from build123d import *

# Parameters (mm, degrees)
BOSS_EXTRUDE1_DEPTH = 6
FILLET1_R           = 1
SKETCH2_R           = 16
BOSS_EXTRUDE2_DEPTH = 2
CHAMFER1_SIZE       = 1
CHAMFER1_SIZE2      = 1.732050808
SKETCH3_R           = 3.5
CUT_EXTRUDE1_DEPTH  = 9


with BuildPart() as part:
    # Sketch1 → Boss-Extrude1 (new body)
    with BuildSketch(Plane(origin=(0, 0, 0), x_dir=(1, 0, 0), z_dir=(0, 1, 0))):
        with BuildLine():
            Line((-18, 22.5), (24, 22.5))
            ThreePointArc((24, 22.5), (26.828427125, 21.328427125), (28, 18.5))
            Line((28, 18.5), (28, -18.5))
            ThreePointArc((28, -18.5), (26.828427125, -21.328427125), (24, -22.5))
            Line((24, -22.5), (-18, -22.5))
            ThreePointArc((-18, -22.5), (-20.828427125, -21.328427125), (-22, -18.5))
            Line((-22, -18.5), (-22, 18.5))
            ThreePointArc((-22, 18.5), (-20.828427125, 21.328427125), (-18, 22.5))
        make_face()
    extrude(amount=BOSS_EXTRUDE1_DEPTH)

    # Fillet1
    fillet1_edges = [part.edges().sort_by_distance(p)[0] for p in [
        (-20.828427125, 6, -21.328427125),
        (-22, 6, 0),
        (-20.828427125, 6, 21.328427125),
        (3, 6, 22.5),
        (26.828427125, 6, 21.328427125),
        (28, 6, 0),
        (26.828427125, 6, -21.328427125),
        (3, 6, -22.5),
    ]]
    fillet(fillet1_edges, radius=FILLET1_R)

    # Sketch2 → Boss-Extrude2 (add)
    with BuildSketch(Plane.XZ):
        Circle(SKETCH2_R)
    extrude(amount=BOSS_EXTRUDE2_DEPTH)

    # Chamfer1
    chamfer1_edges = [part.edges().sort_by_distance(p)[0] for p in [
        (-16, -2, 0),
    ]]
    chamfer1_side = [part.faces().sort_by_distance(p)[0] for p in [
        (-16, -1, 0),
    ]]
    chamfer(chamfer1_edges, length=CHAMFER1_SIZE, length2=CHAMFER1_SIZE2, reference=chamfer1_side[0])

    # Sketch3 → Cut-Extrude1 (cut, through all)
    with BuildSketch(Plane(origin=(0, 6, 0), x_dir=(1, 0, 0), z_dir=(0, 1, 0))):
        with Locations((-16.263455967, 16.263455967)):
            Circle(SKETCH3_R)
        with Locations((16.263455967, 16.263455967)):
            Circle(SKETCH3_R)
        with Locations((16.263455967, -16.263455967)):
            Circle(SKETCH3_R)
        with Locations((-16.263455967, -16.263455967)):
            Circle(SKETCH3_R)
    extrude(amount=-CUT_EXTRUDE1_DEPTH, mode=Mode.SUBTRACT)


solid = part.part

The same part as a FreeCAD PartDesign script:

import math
import FreeCAD as App
import Part
import Sketcher

V = App.Vector


def edges_at(feature, points):
    """Names of the edges that pass closest to the given points."""
    edges = feature.Shape.Edges
    near = lambda p: min(range(len(edges)), key=lambda i: edges[i].distToShape(Part.Vertex(*p))[0])
    return sorted({f"Edge{near(p) + 1}" for p in points})

doc = App.newDocument("Part")
body = doc.addObject("PartDesign::Body", "Body")

sketch1 = doc.addObject("Sketcher::SketchObject", "Sketch")
body.addObject(sketch1)
sketch1.AttachmentSupport = (doc.XZ_Plane, [""])
sketch1.MapMode = "FlatFace"
sketch1.addGeometry(Part.LineSegment(V(24, -22.5, 0), V(-18, -22.5, 0)), False)
sketch1.addGeometry(Part.ArcOfCircle(Part.Circle(V(-18, -18.5, 0), V(0, 0, 1), 4), math.radians(180), math.radians(270)), False)
sketch1.addGeometry(Part.LineSegment(V(-22, -18.5, 0), V(-22, 18.5, 0)), False)
sketch1.addGeometry(Part.ArcOfCircle(Part.Circle(V(-18, 18.5, 0), V(0, 0, 1), 4), math.radians(90), math.radians(180)), False)
sketch1.addGeometry(Part.LineSegment(V(-18, 22.5, 0), V(24, 22.5, 0)), False)
sketch1.addGeometry(Part.ArcOfCircle(Part.Circle(V(24, 18.5, 0), V(0, 0, 1), 4), math.radians(0), math.radians(90)), False)
sketch1.addGeometry(Part.LineSegment(V(28, 18.5, 0), V(28, -18.5, 0)), False)
sketch1.addGeometry(Part.ArcOfCircle(Part.Circle(V(24, -18.5, 0), V(0, 0, 1), 4), math.radians(-90), math.radians(0)), False)
sketch1.addConstraint(Sketcher.Constraint("Tangent", 0, 2, 1, 2))
sketch1.addConstraint(Sketcher.Constraint("Tangent", 1, 1, 2, 1))
sketch1.addConstraint(Sketcher.Constraint("Tangent", 2, 2, 3, 2))
sketch1.addConstraint(Sketcher.Constraint("Tangent", 3, 1, 4, 1))
sketch1.addConstraint(Sketcher.Constraint("Tangent", 4, 2, 5, 2))
sketch1.addConstraint(Sketcher.Constraint("Tangent", 5, 1, 6, 1))
sketch1.addConstraint(Sketcher.Constraint("Tangent", 6, 2, 7, 2))
sketch1.addConstraint(Sketcher.Constraint("Tangent", 7, 1, 0, 1))
sketch1.addConstraint(Sketcher.Constraint("Horizontal", 0))
sketch1.addConstraint(Sketcher.Constraint("Vertical", 2))
sketch1.addConstraint(Sketcher.Constraint("Horizontal", 4))
sketch1.addConstraint(Sketcher.Constraint("Vertical", 6))
sketch1.addConstraint(Sketcher.Constraint("Equal", 1, 3))
sketch1.addConstraint(Sketcher.Constraint("Equal", 3, 5))
sketch1.addConstraint(Sketcher.Constraint("Equal", 5, 7))
sketch1.addConstraint(Sketcher.Constraint("Radius", 1, 4.0))
sketch1.addConstraint(Sketcher.Constraint("DistanceX", 0, 2, 0, 1, 42.0))
sketch1.addConstraint(Sketcher.Constraint("DistanceY", 2, 1, 2, 2, 37.0))
sketch1.addConstraint(Sketcher.Constraint("DistanceX", 1, 3, -1, 1, 18.0))
sketch1.addConstraint(Sketcher.Constraint("DistanceY", 1, 3, -1, 1, 18.5))
pad1 = doc.addObject("PartDesign::Pad", "Pad")
body.addObject(pad1)
pad1.Profile = sketch1
pad1.Length = 6
pad1.Reversed = True
doc.recompute()

fillet = doc.addObject("PartDesign::Fillet", "Fillet")
body.addObject(fillet)
fillet.Base = (pad1, edges_at(pad1, [
    (-20.828, 6, -21.328),
    (-22, 6, 0),
    (-20.828, 6, 21.328),
    (3, 6, 22.5),
    (26.828, 6, 21.328),
    (28, 6, 0),
    (26.828, 6, -21.328),
    (3, 6, -22.5),
]))
fillet.Radius = 1

sketch2 = doc.addObject("Sketcher::SketchObject", "Sketch001")
body.addObject(sketch2)
sketch2.AttachmentSupport = (doc.XZ_Plane, [""])
sketch2.MapMode = "FlatFace"
sketch2.addGeometry(Part.Circle(V(0, 0, 0), V(0, 0, 1), 16), False)
sketch2.addConstraint(Sketcher.Constraint("Coincident", 0, 3, -1, 1))
sketch2.addConstraint(Sketcher.Constraint("Diameter", 0, 32.0))
pad2 = doc.addObject("PartDesign::Pad", "Pad001")
body.addObject(pad2)
pad2.Profile = sketch2
pad2.Length = 2
doc.recompute()

chamfer = doc.addObject("PartDesign::Chamfer", "Chamfer")
body.addObject(chamfer)
chamfer.Base = (pad2, edges_at(pad2, [(-16, -2, 0)]))
chamfer.ChamferType = "Two distances"
chamfer.Size = 1
chamfer.Size2 = 1.732051

sketch3 = doc.addObject("Sketcher::SketchObject", "Sketch002")
body.addObject(sketch3)
sketch3.AttachmentSupport = (doc.XZ_Plane, [""])
sketch3.MapMode = "FlatFace"
sketch3.AttachmentOffset = App.Placement(V(0, 0, -6), App.Rotation())
sketch3.addGeometry(Part.Circle(V(-16.263456, -16.263456, 0), V(0, 0, 1), 3.5), False)
sketch3.addGeometry(Part.Circle(V(16.263456, -16.263456, 0), V(0, 0, 1), 3.5), False)
sketch3.addGeometry(Part.Circle(V(16.263456, 16.263456, 0), V(0, 0, 1), 3.5), False)
sketch3.addGeometry(Part.Circle(V(-16.263456, 16.263456, 0), V(0, 0, 1), 3.5), False)
sketch3.addConstraint(Sketcher.Constraint("Equal", 0, 1))
sketch3.addConstraint(Sketcher.Constraint("Equal", 1, 2))
sketch3.addConstraint(Sketcher.Constraint("Equal", 2, 3))
sketch3.addConstraint(Sketcher.Constraint("Symmetric", 0, 3, 2, 3, -1, 1))
sketch3.addConstraint(Sketcher.Constraint("Symmetric", 1, 3, 3, 3, -1, 1))
sketch3.addConstraint(Sketcher.Constraint("Symmetric", 0, 3, 1, 3, -2))
sketch3.addConstraint(Sketcher.Constraint("Diameter", 0, 7.0))
sketch3.addConstraint(Sketcher.Constraint("DistanceX", 0, 3, 1, 3, 32.526912))
sketch3.addConstraint(Sketcher.Constraint("DistanceY", 1, 3, 2, 3, 32.526912))
pocket1 = doc.addObject("PartDesign::Pocket", "Pocket")
body.addObject(pocket1)
pocket1.Profile = sketch3
pocket1.Type = "ThroughAll"
pocket1.Reversed = True

doc.recompute()
